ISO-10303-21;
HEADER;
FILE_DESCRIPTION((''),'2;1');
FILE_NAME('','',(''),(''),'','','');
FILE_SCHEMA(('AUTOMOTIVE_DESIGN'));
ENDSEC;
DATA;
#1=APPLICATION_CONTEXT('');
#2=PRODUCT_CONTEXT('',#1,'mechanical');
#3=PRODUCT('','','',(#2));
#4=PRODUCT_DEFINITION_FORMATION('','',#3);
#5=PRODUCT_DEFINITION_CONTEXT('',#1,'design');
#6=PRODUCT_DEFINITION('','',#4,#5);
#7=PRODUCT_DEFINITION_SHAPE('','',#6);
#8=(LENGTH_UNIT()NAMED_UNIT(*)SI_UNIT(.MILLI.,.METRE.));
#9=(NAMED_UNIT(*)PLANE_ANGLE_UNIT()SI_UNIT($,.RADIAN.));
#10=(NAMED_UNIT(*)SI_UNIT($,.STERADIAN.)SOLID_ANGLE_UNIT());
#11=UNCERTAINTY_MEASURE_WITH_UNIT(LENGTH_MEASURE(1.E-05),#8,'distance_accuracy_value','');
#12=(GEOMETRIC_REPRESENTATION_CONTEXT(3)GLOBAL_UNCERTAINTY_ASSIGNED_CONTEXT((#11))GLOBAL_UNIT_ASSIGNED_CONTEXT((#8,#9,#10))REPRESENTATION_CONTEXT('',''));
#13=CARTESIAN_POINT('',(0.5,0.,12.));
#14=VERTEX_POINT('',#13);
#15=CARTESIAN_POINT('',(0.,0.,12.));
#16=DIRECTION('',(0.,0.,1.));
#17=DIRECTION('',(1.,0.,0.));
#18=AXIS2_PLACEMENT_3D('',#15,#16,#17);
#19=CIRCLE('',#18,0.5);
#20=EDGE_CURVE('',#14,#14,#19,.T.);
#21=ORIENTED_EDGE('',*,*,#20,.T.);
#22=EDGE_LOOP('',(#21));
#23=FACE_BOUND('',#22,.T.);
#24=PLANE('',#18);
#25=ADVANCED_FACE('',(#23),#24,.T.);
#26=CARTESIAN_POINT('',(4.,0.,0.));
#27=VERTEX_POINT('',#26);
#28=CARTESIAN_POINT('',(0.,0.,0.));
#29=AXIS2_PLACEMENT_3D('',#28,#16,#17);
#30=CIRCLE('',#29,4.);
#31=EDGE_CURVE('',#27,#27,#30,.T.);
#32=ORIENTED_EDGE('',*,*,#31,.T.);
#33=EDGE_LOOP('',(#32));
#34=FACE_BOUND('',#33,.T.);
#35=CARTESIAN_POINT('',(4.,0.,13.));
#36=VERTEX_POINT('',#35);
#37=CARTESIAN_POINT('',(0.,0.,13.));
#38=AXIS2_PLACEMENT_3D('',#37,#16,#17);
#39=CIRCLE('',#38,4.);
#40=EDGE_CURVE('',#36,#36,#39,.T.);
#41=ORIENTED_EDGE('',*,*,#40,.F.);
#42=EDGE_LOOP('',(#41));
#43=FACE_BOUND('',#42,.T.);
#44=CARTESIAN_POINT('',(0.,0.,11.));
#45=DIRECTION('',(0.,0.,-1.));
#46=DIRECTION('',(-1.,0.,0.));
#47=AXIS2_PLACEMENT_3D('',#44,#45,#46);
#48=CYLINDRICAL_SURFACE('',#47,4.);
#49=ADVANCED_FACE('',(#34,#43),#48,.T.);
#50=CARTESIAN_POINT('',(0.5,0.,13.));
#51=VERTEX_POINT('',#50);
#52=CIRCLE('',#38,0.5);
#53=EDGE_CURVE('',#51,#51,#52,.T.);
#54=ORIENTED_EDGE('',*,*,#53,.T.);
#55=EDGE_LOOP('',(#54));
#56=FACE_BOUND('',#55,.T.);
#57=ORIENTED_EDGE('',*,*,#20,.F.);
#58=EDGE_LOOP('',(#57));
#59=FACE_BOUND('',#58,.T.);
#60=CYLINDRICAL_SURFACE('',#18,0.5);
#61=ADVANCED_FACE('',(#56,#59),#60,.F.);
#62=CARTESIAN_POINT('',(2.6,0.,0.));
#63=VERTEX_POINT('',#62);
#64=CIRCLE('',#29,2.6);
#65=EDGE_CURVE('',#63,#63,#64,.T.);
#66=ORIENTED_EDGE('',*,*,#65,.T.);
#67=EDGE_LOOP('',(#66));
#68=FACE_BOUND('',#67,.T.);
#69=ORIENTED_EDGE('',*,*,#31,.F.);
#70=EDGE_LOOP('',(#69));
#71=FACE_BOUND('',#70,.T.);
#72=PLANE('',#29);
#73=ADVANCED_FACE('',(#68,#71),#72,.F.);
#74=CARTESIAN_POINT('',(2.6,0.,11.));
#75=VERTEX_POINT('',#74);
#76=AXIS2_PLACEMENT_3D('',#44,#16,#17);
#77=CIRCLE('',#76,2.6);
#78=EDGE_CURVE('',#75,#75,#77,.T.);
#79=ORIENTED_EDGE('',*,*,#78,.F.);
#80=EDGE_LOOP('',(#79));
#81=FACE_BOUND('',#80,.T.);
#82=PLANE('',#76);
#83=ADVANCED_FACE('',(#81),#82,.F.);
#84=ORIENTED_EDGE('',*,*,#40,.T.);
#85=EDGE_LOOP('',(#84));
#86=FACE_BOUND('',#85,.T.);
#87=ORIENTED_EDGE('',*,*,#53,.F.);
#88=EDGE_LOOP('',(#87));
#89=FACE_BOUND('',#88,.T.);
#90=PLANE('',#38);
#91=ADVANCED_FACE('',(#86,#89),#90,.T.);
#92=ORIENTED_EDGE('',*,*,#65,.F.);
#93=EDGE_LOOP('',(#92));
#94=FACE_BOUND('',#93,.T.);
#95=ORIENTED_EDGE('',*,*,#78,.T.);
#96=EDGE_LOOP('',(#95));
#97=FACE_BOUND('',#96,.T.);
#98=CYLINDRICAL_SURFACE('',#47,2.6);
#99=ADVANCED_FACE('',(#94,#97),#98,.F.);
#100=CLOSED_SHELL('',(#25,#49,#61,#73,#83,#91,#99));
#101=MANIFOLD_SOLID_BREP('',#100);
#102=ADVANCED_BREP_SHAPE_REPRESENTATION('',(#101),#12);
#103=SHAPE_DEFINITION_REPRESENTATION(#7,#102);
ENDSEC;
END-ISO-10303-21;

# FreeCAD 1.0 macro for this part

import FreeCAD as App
import Part
import Sketcher
from FreeCAD import Vector
Q = App.Units.Quantity

doc = App.newDocument("Part")
params = doc.addObject("Spreadsheet::Sheet", "Params")
for row, (alias, value) in enumerate([
    ("sketch1_diameter", "8 mm"),
    ("sketch1_diameter2", "5.2 mm"),
    ("pad1_length", "11 mm"),
    ("sketch2_diameter", "8 mm"),
    ("pad2_length", "2 mm"),
    ("sketch3_diameter", "1 mm"),
    ("pocket1_length", "1 mm"),
], start=1):
    params.set(f"A{row}", alias)
    params.set(f"B{row}", "=" + value)
    params.setAlias(f"B{row}", alias)

body = doc.addObject("PartDesign::Body", "Body")

# Sketch on XY plane
sketch1 = body.newObject("Sketcher::SketchObject", "Sketch")
sketch1.AttachmentSupport = (doc.getObject("XY_Plane"), [""])
sketch1.MapMode = "FlatFace"
sketch1.addGeometry([
    Part.Circle(Vector(0, 0, 0), Vector(0, 0, 1), 4),
    Part.Circle(Vector(0, 0, 0), Vector(0, 0, 1), 2.6),
], False)
sketch1.addConstraint([
    Sketcher.Constraint("Coincident", 0, 3, -1, 1),
    Sketcher.Constraint("Coincident", 1, 3, -1, 1),
    Sketcher.Constraint("Diameter", 0, Q("8 mm")),
    Sketcher.Constraint("Diameter", 1, Q("5.2 mm")),
])
sketch1.setExpression("Constraints[2]", "Params.sketch1_diameter")
sketch1.setExpression("Constraints[3]", "Params.sketch1_diameter2")
pad1 = body.newObject("PartDesign::Pad", "Pad")
pad1.Profile = sketch1
pad1.setExpression("Length", "Params.pad1_length")

# Sketch on XY plane
sketch2 = body.newObject("Sketcher::SketchObject", "Sketch001")
sketch2.AttachmentSupport = (doc.getObject("XY_Plane"), [""])
sketch2.MapMode = "FlatFace"
sketch2.AttachmentOffset = App.Placement(Vector(0, 0, 11), App.Rotation())
sketch2.addGeometry(Part.Circle(Vector(0, 0, 0), Vector(0, 0, 1), 4), False)
sketch2.addConstraint([
    Sketcher.Constraint("Coincident", 0, 3, -1, 1),
    Sketcher.Constraint("Diameter", 0, Q("8 mm")),
])
sketch2.setExpression("Constraints[1]", "Params.sketch2_diameter")
pad2 = body.newObject("PartDesign::Pad", "Pad001")
pad2.Profile = sketch2
pad2.setExpression("Length", "Params.pad2_length")

# Sketch on XY plane
sketch3 = body.newObject("Sketcher::SketchObject", "Sketch002")
sketch3.AttachmentSupport = (doc.getObject("XY_Plane"), [""])
sketch3.MapMode = "FlatFace"
sketch3.AttachmentOffset = App.Placement(Vector(0, 0, 13), App.Rotation())
sketch3.addGeometry(Part.Circle(Vector(0, 0, 0), Vector(0, 0, 1), 0.5), False)
sketch3.addConstraint([
    Sketcher.Constraint("Coincident", 0, 3, -1, 1),
    Sketcher.Constraint("Diameter", 0, Q("1 mm")),
])
sketch3.setExpression("Constraints[1]", "Params.sketch3_diameter")
pocket1 = body.newObject("PartDesign::Pocket", "Pocket")
pocket1.Profile = sketch3
pocket1.setExpression("Length", "Params.pocket1_length")

doc.recompute()
